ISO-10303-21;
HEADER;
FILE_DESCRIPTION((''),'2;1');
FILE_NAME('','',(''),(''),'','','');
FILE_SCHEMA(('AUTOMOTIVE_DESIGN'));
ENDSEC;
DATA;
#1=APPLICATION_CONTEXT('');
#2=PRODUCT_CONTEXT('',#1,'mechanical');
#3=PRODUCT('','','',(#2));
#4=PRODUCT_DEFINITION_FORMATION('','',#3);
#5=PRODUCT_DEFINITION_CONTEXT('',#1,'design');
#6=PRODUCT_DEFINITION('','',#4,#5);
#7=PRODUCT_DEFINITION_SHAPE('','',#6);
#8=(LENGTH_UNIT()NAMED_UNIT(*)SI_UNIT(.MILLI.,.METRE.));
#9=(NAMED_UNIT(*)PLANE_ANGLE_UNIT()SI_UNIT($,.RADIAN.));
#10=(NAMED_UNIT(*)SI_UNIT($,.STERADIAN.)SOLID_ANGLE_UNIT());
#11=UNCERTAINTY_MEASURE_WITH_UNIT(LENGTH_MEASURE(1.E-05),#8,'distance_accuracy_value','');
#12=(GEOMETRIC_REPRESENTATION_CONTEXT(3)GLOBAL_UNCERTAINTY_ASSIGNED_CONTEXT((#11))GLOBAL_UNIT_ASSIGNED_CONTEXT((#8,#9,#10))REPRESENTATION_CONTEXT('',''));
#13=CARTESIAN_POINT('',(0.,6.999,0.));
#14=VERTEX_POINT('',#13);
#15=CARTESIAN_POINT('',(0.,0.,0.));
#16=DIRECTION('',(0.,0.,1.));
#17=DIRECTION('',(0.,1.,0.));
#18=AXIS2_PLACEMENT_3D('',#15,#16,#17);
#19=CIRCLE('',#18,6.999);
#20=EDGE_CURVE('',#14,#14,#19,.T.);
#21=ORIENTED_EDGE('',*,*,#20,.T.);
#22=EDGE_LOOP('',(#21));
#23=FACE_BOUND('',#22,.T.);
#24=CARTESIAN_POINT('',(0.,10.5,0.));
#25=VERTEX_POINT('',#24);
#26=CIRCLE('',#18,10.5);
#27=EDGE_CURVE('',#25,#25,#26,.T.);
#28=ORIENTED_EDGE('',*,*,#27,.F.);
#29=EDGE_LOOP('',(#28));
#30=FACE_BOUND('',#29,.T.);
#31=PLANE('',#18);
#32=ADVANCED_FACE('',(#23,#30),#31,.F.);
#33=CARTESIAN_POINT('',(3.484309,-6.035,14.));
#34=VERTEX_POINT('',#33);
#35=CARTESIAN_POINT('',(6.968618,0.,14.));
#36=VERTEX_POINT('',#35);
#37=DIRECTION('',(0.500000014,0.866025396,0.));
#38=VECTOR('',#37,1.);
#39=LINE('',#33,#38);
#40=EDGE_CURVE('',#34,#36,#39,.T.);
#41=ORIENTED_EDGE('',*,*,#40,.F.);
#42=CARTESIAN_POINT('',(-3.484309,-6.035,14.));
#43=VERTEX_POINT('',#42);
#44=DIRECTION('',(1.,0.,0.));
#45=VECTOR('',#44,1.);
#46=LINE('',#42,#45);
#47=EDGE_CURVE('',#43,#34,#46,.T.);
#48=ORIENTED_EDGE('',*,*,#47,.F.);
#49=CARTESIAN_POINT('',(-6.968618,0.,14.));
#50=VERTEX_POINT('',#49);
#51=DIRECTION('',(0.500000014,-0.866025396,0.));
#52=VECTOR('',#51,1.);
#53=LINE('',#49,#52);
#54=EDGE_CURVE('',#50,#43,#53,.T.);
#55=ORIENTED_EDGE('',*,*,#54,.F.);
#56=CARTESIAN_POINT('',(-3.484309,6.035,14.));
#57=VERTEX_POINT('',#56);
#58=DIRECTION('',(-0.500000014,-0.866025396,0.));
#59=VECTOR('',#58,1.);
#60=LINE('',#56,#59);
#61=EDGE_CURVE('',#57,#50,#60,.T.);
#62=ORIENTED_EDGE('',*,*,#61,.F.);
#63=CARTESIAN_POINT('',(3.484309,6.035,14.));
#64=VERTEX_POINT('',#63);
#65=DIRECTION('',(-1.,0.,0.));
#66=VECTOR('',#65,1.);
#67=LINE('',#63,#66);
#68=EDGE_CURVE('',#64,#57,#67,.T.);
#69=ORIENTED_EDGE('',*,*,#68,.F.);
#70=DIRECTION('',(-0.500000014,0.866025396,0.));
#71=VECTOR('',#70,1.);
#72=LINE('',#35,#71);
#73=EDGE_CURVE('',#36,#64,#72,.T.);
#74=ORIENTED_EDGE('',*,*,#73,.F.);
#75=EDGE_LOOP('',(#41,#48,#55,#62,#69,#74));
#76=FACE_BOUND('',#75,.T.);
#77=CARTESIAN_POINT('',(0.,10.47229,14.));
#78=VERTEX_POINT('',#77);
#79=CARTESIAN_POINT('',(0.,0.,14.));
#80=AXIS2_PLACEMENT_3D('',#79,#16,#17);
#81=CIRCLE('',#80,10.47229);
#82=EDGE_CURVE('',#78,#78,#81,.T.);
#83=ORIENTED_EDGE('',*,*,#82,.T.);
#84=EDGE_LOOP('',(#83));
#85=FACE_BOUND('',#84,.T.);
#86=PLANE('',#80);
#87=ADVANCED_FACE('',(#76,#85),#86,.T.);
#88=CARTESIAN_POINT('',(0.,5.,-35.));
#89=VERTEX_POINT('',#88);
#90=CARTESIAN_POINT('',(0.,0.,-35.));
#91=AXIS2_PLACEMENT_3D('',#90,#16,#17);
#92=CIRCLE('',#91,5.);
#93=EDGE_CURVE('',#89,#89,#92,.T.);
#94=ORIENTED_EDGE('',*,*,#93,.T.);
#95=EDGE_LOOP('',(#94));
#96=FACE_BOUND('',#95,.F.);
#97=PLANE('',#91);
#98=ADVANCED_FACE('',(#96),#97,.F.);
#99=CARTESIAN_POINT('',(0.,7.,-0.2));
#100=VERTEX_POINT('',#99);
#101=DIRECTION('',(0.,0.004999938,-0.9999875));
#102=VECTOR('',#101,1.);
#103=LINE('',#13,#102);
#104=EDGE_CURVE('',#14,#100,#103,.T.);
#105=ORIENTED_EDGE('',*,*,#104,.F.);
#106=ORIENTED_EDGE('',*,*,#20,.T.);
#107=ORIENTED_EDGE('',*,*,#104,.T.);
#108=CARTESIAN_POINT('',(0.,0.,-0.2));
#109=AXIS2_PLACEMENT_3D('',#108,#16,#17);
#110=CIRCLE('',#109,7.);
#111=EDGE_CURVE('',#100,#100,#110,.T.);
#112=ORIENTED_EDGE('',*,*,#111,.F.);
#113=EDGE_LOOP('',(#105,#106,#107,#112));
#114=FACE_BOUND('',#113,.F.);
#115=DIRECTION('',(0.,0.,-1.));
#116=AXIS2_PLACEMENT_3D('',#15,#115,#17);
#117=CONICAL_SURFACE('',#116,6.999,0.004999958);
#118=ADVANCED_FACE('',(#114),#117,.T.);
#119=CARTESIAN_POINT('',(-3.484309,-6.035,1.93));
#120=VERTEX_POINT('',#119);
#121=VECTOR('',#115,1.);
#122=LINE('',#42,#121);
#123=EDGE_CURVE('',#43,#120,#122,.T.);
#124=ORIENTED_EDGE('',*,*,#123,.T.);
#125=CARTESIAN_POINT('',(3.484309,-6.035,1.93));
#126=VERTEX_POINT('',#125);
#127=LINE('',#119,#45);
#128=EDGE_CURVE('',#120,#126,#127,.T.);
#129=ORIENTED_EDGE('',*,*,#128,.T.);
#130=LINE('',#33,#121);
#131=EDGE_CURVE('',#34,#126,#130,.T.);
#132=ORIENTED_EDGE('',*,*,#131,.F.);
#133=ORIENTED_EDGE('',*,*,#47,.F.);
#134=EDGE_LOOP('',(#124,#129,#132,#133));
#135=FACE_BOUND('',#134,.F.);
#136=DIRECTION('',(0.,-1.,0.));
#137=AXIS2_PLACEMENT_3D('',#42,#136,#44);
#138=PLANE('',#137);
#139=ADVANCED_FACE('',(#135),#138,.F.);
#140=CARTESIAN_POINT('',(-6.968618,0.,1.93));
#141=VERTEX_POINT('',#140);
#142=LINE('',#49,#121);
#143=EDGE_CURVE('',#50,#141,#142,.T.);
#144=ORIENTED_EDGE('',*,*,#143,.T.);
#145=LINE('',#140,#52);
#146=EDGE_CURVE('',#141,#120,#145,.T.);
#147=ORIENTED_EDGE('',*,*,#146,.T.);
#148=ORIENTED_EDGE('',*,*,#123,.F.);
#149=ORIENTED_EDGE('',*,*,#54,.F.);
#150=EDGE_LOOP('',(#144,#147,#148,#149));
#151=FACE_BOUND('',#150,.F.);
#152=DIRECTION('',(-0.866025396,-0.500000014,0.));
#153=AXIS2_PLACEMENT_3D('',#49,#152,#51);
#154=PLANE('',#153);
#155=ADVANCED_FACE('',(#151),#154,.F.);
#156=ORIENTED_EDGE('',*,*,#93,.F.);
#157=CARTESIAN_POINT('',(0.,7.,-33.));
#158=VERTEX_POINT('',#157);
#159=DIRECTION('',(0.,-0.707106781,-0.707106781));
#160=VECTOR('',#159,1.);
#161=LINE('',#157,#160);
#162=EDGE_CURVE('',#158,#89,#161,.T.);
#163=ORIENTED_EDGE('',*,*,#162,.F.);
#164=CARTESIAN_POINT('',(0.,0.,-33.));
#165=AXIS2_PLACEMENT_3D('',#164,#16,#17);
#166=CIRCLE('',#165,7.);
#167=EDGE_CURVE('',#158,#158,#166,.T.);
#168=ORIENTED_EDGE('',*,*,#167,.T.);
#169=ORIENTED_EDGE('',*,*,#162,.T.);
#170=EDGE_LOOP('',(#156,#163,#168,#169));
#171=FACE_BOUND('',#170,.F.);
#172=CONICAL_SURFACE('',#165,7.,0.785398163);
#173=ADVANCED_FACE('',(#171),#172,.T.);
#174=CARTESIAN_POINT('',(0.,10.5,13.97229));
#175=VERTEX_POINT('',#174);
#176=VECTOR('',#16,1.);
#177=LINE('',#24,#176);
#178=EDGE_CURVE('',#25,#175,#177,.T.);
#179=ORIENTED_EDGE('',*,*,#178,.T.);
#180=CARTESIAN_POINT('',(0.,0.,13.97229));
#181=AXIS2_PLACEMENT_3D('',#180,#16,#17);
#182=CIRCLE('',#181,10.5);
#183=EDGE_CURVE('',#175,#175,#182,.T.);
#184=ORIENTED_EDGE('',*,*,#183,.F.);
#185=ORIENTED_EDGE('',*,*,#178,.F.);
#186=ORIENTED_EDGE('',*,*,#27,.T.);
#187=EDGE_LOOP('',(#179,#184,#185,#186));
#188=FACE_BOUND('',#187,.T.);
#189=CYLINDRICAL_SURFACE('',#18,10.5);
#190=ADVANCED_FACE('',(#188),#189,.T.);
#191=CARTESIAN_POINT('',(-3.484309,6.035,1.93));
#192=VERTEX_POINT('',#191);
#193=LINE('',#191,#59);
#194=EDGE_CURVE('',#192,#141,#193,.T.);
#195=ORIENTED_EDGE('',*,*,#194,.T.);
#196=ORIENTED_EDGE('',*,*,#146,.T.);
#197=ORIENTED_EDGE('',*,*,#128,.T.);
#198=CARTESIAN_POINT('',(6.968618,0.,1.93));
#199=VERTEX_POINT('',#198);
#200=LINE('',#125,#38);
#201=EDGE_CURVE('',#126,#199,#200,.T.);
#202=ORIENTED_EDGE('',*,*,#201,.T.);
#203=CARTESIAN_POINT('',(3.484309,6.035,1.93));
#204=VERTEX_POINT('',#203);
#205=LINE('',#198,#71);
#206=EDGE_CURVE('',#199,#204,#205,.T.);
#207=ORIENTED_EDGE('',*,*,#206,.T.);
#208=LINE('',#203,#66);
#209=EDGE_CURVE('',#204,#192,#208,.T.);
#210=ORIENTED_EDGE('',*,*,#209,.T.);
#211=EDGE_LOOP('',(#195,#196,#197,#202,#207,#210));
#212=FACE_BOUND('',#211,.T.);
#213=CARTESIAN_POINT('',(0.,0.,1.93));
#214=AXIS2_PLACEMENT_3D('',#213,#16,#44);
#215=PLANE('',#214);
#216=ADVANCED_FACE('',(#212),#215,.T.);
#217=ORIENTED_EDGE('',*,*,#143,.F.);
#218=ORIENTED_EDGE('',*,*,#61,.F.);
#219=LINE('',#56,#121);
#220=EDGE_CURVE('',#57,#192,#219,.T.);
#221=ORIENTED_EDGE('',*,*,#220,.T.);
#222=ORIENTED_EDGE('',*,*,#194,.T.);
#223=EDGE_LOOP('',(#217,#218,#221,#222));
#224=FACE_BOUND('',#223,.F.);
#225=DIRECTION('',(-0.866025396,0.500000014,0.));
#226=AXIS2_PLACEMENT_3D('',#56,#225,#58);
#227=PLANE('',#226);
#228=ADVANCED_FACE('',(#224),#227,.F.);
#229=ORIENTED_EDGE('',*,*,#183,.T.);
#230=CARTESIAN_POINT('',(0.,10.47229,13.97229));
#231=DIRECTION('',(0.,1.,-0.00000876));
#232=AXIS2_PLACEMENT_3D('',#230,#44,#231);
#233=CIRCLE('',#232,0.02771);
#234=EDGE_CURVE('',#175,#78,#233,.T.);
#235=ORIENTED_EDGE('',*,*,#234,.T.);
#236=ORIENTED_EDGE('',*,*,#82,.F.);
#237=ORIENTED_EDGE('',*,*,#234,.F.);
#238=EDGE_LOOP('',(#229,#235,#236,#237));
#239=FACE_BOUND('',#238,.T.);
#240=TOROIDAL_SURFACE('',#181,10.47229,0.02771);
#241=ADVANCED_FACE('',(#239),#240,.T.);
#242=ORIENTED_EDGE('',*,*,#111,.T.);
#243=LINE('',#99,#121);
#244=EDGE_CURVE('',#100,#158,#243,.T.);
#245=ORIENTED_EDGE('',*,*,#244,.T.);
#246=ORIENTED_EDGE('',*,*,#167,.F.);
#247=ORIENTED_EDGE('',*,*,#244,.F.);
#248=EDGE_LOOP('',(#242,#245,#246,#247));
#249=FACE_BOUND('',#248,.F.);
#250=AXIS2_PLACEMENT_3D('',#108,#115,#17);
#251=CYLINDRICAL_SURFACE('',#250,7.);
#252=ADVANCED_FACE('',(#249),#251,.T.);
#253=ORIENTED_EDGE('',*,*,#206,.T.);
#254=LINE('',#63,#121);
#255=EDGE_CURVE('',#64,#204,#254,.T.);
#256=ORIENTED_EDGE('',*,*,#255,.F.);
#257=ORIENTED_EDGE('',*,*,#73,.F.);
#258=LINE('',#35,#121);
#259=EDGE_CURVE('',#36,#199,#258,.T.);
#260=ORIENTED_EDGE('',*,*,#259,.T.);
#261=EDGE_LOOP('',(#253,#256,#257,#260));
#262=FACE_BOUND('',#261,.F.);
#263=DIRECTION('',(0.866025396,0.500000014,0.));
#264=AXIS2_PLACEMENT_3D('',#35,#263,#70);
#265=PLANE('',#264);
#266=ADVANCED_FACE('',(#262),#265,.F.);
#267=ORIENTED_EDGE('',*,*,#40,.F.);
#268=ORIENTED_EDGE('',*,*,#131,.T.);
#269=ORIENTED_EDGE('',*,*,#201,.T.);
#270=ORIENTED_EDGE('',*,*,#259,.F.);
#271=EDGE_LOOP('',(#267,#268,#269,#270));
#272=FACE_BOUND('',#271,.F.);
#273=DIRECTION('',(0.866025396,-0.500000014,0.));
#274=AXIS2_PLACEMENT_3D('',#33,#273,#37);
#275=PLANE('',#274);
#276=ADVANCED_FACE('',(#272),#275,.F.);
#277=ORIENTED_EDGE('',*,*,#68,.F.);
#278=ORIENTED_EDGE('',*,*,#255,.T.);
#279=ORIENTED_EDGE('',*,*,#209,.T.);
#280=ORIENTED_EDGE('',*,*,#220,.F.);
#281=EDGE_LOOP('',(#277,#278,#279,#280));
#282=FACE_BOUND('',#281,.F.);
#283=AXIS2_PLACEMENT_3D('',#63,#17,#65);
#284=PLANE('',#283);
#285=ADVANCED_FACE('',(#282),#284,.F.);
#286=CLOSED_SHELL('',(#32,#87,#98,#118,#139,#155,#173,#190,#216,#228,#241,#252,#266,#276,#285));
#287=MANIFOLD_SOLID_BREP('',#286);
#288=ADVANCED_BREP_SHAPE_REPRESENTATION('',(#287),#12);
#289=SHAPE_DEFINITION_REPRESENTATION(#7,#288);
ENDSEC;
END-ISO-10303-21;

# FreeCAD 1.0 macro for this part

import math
import FreeCAD as App
import Part
import Sketcher
from FreeCAD import Vector
Q = App.Units.Quantity


def add_polygon(sketch, points):
    """Adds a closed chain of lines whose ends are joined by coincident constraints."""
    first, n = sketch.GeometryCount, len(points)
    for a, b in zip(points, points[1:] + points[:1]):
        sketch.addGeometry(Part.LineSegment(App.Vector(*a, 0), App.Vector(*b, 0)), False)
    for i in range(n):
        sketch.addConstraint(Sketcher.Constraint("Coincident", first + i, 2, first + (i + 1) % n, 1))

doc = App.newDocument("Part")
body = doc.addObject("PartDesign::Body", "Body")

# Sketch on YZ plane
sketch1 = body.newObject("Sketcher::SketchObject", "Sketch")
sketch1.AttachmentSupport = (doc.getObject("YZ_Plane"), [""])
sketch1.MapMode = "FlatFace"
sketch1.addGeometry([
    Part.LineSegment(Vector(6.999, 0, 0), Vector(10.5, 0, 0)),  # 0
    Part.LineSegment(Vector(10.5, 0, 0), Vector(10.5, 13.97229, 0)),  # 1
    Part.ArcOfCircle(Part.Circle(Vector(10.47229, 13.97229, 0), Vector(0, 0, 1), 0.02771), math.radians(-0.000502), math.radians(90.000502)),  # 2
    Part.LineSegment(Vector(10.47229, 14, 0), Vector(0, 14, 0)),  # 3
    Part.LineSegment(Vector(0, 14, 0), Vector(0, -35, 0)),  # 4
    Part.LineSegment(Vector(0, -35, 0), Vector(5, -35, 0)),  # 5
    Part.LineSegment(Vector(5, -35, 0), Vector(7, -33, 0)),  # 6
    Part.LineSegment(Vector(7, -33, 0), Vector(7, -0.2, 0)),  # 7
    Part.LineSegment(Vector(7, -0.2, 0), Vector(6.999, 0, 0)),  # 8
], False)
sketch1.addConstraint([
    Sketcher.Constraint("Coincident", 0, 2, 1, 1),
    Sketcher.Constraint("Coincident", 1, 2, 2, 1),
    Sketcher.Constraint("Coincident", 2, 2, 3, 1),
    Sketcher.Constraint("Coincident", 3, 2, 4, 1),
    Sketcher.Constraint("Coincident", 4, 2, 5, 1),
    Sketcher.Constraint("Coincident", 5, 2, 6, 1),
    Sketcher.Constraint("Coincident", 6, 2, 7, 1),
    Sketcher.Constraint("Coincident", 7, 2, 8, 1),
    Sketcher.Constraint("Coincident", 8, 2, 0, 1),
    Sketcher.Constraint("Horizontal", 0),
    Sketcher.Constraint("Vertical", 1),
    Sketcher.Constraint("Horizontal", 3),
    Sketcher.Constraint("Vertical", 4),
    Sketcher.Constraint("Horizontal", 5),
    Sketcher.Constraint("Vertical", 7),
    Sketcher.Constraint("PointOnObject", 0, 2, -1),
    Sketcher.Constraint("PointOnObject", 3, 2, -2),
    Sketcher.Constraint("Horizontal", 2, 3, 1, 2),
    Sketcher.Constraint("DistanceX", 5, 1, 5, 2, Q("5 mm")),
    Sketcher.Constraint("DistanceY", 4, 2, 4, 1, Q("49 mm")),
    Sketcher.Constraint("Angle", 6, Q("45 deg")),
    Sketcher.Constraint("DistanceY", 7, 1, 7, 2, Q("32.8 mm")),
    Sketcher.Constraint("DistanceY", -1, 1, 2, 2, Q("14 mm")),
    Sketcher.Constraint("DistanceX", -1, 1, 6, 2, Q("7 mm")),
    Sketcher.Constraint("DistanceX", -1, 1, 0, 2, Q("10.5 mm")),
    Sketcher.Constraint("DistanceX", 0, 1, 0, 2, Q("3.501 mm")),
    Sketcher.Constraint("Radius", 2, Q("0.02771 mm")),
    Sketcher.Constraint("DistanceX", 3, 2, 3, 1, Q("10.47229 mm")),
])
revolution = body.newObject("PartDesign::Revolution", "Revolution")
revolution.Profile = sketch1
revolution.ReferenceAxis = (sketch1, ["V_Axis"])
revolution.Angle = 360

# Sketch on XY plane
sketch2 = body.newObject("Sketcher::SketchObject", "Sketch001")
sketch2.AttachmentSupport = (doc.getObject("XY_Plane"), [""])
sketch2.MapMode = "FlatFace"
sketch2.AttachmentOffset = App.Placement(Vector(0, 0, 14), App.Rotation())
add_polygon(sketch2, [(6.968618, 0), (3.484309, 6.035), (-3.484309, 6.035), (-6.968618, 0), (-3.484309, -6.035), (3.484309, -6.035)])  # lines 0-5
sketch2.addConstraint([
    Sketcher.Constraint("Horizontal", 1),
    Sketcher.Constraint("Horizontal", 4),
    Sketcher.Constraint("Symmetric", 0, 2, 3, 2, -1, 1),
    Sketcher.Constraint("Symmetric", 2, 2, 5, 2, -1, 1),
    Sketcher.Constraint("PointOnObject", 2, 2, -1),
    Sketcher.Constraint("Parallel", 2, 5),
    Sketcher.Constraint("Vertical", 1, 2, 3, 2),
    Sketcher.Constraint("Angle", 0, Q("120.000001 deg")),
    Sketcher.Constraint("DistanceY", 3, 2, 1, 2, Q("12.07 mm")),
    Sketcher.Constraint("DistanceX", 1, 2, 1, 1, Q("6.968618 mm")),
])
pocket1 = body.newObject("PartDesign::Pocket", "Pocket")
pocket1.Profile = sketch2
pocket1.Length = 12.07

doc.recompute()
